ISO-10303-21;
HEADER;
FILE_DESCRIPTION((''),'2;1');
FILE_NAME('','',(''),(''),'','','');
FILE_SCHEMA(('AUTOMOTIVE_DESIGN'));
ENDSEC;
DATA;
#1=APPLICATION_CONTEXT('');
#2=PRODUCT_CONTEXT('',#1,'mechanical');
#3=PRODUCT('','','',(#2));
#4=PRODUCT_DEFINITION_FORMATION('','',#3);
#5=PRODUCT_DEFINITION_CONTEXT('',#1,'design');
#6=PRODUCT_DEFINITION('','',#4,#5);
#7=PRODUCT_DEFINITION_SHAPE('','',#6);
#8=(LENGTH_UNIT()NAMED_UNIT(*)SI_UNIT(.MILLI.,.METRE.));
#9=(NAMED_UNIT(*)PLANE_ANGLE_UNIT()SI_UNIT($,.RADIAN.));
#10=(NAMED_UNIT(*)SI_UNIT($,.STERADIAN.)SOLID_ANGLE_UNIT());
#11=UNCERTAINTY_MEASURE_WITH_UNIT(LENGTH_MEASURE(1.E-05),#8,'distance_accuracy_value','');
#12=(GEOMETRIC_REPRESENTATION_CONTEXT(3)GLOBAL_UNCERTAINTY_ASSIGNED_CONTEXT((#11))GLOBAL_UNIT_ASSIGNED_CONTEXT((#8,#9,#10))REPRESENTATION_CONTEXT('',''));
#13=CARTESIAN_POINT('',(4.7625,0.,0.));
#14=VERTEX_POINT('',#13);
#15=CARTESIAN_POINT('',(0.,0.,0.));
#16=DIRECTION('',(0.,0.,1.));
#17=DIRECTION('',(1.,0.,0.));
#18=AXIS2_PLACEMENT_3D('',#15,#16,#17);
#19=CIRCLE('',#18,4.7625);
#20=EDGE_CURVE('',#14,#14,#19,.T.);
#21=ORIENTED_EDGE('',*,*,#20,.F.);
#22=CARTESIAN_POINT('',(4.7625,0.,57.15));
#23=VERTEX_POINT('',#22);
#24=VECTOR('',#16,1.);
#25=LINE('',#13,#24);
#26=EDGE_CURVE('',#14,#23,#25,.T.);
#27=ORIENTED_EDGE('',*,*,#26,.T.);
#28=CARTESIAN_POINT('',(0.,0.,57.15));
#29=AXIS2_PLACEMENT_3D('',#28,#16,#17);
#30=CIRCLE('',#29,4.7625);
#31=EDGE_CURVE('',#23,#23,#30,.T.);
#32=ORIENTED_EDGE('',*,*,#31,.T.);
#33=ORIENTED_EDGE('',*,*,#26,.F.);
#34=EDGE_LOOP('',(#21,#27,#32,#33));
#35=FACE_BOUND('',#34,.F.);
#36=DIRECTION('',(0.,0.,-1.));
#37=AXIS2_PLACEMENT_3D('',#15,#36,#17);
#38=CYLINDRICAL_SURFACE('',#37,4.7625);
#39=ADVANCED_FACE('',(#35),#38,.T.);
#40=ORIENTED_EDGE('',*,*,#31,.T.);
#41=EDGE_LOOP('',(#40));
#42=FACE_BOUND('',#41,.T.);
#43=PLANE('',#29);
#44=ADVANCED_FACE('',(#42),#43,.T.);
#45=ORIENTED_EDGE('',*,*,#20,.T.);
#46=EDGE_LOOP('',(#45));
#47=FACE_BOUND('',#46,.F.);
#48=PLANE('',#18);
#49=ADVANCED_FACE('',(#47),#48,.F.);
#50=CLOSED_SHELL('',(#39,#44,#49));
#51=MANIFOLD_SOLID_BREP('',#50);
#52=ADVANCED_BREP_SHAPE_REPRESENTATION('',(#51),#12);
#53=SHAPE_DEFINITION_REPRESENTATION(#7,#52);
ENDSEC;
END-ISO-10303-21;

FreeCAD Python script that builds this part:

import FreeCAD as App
import Part
import Sketcher

V = App.Vector
Q = App.Units.Quantity

doc = App.newDocument("Part")
body = doc.addObject("PartDesign::Body", "Body")

# Sketch on XY plane
sketch1 = body.newObject("Sketcher::SketchObject", "Sketch")
sketch1.AttachmentSupport = (doc.getObject("XY_Plane"), [""])
sketch1.MapMode = "FlatFace"
sketch1.addGeometry(Part.Circle(V(0, 0, 0), V(0, 0, 1), 4.8), False)
sketch1.addConstraint(Sketcher.Constraint("Coincident", 0, 3, -1, 1))
sketch1.addConstraint(Sketcher.Constraint("Diameter", 0, Q("0.375 in")))
pad1 = body.newObject("PartDesign::Pad", "Pad")
pad1.Profile = sketch1
pad1.Length = Q("2.25 in")

doc.recompute()
